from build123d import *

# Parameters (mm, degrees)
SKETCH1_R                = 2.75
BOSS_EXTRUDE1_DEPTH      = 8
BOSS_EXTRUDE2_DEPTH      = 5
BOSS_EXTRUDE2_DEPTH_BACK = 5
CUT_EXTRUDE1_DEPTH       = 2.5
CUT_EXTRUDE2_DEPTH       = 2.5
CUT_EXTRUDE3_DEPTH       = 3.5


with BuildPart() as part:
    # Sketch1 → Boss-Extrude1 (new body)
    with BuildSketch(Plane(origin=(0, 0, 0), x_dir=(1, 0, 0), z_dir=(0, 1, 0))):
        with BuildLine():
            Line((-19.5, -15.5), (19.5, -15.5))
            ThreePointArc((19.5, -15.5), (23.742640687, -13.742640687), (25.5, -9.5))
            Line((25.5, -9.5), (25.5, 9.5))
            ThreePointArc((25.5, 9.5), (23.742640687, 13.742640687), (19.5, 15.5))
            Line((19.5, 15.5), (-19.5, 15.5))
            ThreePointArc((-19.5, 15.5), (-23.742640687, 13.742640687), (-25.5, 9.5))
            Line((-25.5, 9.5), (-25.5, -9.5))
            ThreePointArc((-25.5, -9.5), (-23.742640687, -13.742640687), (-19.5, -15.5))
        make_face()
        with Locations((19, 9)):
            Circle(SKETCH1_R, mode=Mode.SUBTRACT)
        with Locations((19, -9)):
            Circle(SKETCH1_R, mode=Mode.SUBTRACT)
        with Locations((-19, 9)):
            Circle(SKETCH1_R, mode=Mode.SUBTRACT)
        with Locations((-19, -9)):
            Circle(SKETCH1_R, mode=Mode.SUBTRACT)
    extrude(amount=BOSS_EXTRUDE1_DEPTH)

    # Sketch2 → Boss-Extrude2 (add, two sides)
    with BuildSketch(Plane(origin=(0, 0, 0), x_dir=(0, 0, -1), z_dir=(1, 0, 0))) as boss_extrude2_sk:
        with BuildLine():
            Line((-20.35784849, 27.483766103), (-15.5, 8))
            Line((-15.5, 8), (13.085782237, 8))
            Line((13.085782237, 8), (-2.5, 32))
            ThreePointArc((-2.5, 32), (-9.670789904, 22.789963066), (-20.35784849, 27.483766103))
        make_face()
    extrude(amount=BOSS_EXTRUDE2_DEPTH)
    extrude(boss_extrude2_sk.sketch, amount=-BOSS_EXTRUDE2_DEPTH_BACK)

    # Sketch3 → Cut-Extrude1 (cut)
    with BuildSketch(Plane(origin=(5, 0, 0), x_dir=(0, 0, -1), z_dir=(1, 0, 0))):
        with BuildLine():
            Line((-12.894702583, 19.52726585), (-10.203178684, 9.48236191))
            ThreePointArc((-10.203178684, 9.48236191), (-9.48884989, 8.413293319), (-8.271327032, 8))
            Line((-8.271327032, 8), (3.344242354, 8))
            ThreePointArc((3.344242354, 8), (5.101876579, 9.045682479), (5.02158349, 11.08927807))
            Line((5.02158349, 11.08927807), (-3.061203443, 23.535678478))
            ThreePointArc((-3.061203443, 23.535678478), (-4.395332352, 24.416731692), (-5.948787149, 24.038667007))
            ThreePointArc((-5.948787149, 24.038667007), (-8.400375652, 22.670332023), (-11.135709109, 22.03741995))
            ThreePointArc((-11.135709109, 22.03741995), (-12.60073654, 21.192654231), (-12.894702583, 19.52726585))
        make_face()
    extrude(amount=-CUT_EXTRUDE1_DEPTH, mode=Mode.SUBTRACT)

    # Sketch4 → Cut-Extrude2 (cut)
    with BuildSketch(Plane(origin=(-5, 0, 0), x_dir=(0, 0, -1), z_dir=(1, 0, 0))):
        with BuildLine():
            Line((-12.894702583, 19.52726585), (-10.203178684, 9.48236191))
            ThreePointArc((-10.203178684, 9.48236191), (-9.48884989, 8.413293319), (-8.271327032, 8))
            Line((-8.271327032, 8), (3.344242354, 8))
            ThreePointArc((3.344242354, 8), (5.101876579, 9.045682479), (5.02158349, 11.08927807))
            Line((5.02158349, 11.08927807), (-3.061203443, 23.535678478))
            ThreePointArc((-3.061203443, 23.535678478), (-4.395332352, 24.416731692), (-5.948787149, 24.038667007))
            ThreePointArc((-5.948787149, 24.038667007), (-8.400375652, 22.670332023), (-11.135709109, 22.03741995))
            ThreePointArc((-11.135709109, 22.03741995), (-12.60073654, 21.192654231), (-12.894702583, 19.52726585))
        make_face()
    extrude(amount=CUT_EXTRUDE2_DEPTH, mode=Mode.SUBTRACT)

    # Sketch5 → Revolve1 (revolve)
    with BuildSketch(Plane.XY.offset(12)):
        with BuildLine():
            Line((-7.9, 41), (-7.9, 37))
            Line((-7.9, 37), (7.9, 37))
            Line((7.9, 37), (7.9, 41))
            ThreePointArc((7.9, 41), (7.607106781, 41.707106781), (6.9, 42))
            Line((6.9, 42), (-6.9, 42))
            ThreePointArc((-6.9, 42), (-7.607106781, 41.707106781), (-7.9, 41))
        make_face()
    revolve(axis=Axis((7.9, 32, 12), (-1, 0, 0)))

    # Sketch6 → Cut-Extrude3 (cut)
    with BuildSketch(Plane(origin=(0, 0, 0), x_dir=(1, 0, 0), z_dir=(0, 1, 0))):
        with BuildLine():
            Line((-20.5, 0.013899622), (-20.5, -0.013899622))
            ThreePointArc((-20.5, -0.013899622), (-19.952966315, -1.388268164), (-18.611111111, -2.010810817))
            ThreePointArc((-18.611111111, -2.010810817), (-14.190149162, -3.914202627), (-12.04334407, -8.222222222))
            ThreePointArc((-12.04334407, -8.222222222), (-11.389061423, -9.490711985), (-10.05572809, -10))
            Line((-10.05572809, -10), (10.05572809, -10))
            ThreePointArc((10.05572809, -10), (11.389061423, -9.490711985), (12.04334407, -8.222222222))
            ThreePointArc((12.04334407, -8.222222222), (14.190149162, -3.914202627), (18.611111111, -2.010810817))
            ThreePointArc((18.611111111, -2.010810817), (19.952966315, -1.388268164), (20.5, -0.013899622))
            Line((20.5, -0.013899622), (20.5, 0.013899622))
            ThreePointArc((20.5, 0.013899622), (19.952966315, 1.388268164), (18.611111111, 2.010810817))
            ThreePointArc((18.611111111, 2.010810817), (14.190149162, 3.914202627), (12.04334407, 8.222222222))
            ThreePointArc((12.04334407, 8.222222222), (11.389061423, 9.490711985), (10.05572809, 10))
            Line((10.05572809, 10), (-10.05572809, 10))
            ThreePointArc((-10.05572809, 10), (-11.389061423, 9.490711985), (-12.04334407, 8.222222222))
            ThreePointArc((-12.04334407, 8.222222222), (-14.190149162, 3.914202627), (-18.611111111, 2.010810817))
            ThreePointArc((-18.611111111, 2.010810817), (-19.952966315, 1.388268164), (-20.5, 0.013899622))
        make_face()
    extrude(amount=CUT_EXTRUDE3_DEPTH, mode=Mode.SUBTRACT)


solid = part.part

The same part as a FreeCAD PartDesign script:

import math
import FreeCAD as App
import Part
import Sketcher

V = App.Vector
Q = App.Units.Quantity

doc = App.newDocument("Part")
body = doc.addObject("PartDesign::Body", "Body")

# Sketch on XZ plane
sketch1 = doc.addObject("Sketcher::SketchObject", "Sketch")
body.addObject(sketch1)
sketch1.AttachmentSupport = (doc.XZ_Plane, [""])
sketch1.MapMode = "FlatFace"
sketch1.addGeometry([
    Part.LineSegment(V(-19.5, 15.5, 0), V(19.5, 15.5, 0)),  # 0
    Part.ArcOfCircle(Part.Circle(V(19.5, 9.5, 0), V(0, 0, 1), 6), math.radians(0), math.radians(90)),  # 1
    Part.LineSegment(V(25.5, 9.5, 0), V(25.5, -9.5, 0)),  # 2
    Part.ArcOfCircle(Part.Circle(V(19.5, -9.5, 0), V(0, 0, 1), 6), math.radians(-90), math.radians(0)),  # 3
    Part.LineSegment(V(19.5, -15.5, 0), V(-19.5, -15.5, 0)),  # 4
    Part.ArcOfCircle(Part.Circle(V(-19.5, -9.5, 0), V(0, 0, 1), 6), math.radians(180), math.radians(270)),  # 5
    Part.LineSegment(V(-25.5, -9.5, 0), V(-25.5, 9.5, 0)),  # 6
    Part.ArcOfCircle(Part.Circle(V(-19.5, 9.5, 0), V(0, 0, 1), 6), math.radians(90), math.radians(180)),  # 7
    Part.Circle(V(-19, 9, 0), V(0, 0, 1), 2.8),  # 8
    Part.Circle(V(19, 9, 0), V(0, 0, 1), 2.8),  # 9
    Part.Circle(V(-19, -9, 0), V(0, 0, 1), 2.8),  # 10
    Part.Circle(V(19, -9, 0), V(0, 0, 1), 2.8),  # 11
], False)
sketch1.addConstraint([
    Sketcher.Constraint("Tangent", 0, 2, 1, 2),
    Sketcher.Constraint("Tangent", 1, 1, 2, 1),
    Sketcher.Constraint("Tangent", 2, 2, 3, 2),
    Sketcher.Constraint("Tangent", 3, 1, 4, 1),
    Sketcher.Constraint("Tangent", 4, 2, 5, 2),
    Sketcher.Constraint("Tangent", 5, 1, 6, 1),
    Sketcher.Constraint("Tangent", 6, 2, 7, 2),
    Sketcher.Constraint("Tangent", 7, 1, 0, 1),
    Sketcher.Constraint("Horizontal", 0),
    Sketcher.Constraint("Vertical", 2),
    Sketcher.Constraint("Horizontal", 4),
    Sketcher.Constraint("Vertical", 6),
    Sketcher.Constraint("Equal", 1, 3),
    Sketcher.Constraint("Equal", 3, 5),
    Sketcher.Constraint("Equal", 5, 7),
    Sketcher.Constraint("Equal", 8, 9),
    Sketcher.Constraint("Equal", 9, 10),
    Sketcher.Constraint("Equal", 10, 11),
    Sketcher.Constraint("Symmetric", 1, 3, 5, 3, -1, 1),
    Sketcher.Constraint("Symmetric", 9, 3, 10, 3, -1, 1),
    Sketcher.Constraint("Symmetric", 8, 3, 11, 3, -1, 1),
    Sketcher.Constraint("Symmetric", 8, 3, 9, 3, -2),
    Sketcher.Constraint("Radius", 1, Q("6 mm")),
    Sketcher.Constraint("Diameter", 8, Q("5.5 mm")),
    Sketcher.Constraint("DistanceX", 0, 1, 0, 2, Q("39 mm")),
    Sketcher.Constraint("DistanceY", 2, 2, 2, 1, Q("19 mm")),
    Sketcher.Constraint("DistanceX", 8, 3, -1, 1, Q("19 mm")),
    Sketcher.Constraint("DistanceY", -1, 1, 8, 3, Q("9 mm")),
])
pad1 = doc.addObject("PartDesign::Pad", "Pad")
body.addObject(pad1)
pad1.Profile = sketch1
pad1.Length = 8
pad1.Reversed = True

# Sketch on YZ plane
sketch2 = doc.addObject("Sketcher::SketchObject", "Sketch001")
body.addObject(sketch2)
sketch2.AttachmentSupport = (doc.YZ_Plane, [""])
sketch2.MapMode = "FlatFace"
sketch2.addGeometry([
    Part.LineSegment(V(27, 20, 0), V(8, 16, 0)),
    Part.LineSegment(V(8, 16, 0), V(8, -13, 0)),
    Part.LineSegment(V(8, -13, 0), V(32, 2, 0)),
    Part.ArcOfCircle(Part.Circle(V(32, 12, 0), V(0, 0, 1), 10), math.radians(118), math.radians(270)),
], False)
sketch2.addConstraint([
    Sketcher.Constraint("Coincident", 0, 2, 1, 1),
    Sketcher.Constraint("Coincident", 1, 2, 2, 1),
    Sketcher.Constraint("Coincident", 2, 2, 3, 2),
    Sketcher.Constraint("Coincident", 3, 1, 0, 1),
    Sketcher.Constraint("Vertical", 1),
    Sketcher.Constraint("Vertical", 3, 3, 2, 2),
    Sketcher.Constraint("Radius", 3, Q("9.5 mm")),
    Sketcher.Constraint("Angle", 0, Q("-166 deg")),
    Sketcher.Constraint("Angle", 2, Q("33 deg")),
    Sketcher.Constraint("DistanceX", -1, 1, 3, 3, Q("32 mm")),
    Sketcher.Constraint("DistanceY", -1, 1, 3, 3, Q("12 mm")),
    Sketcher.Constraint("DistanceX", -1, 1, 0, 2, Q("8 mm")),
    Sketcher.Constraint("DistanceY", 2, 2, 0, 2, Q("13 mm")),
])
pad2 = doc.addObject("PartDesign::Pad", "Pad001")
body.addObject(pad2)
pad2.Profile = sketch2
pad2.Type = "TwoLengths"
pad2.Length = 5
pad2.Length2 = 5

# Sketch on YZ plane
sketch3 = doc.addObject("Sketcher::SketchObject", "Sketch002")
body.addObject(sketch3)
sketch3.AttachmentSupport = (doc.YZ_Plane, [""])
sketch3.MapMode = "FlatFace"
sketch3.AttachmentOffset = App.Placement(V(0, 0, 5), App.Rotation())
sketch3.addGeometry([
    Part.LineSegment(V(19.5, 12.9, 0), V(9.5, 10.2, 0)),  # 0
    Part.ArcOfCircle(Part.Circle(V(10, 8.3, 0), V(0, 0, 1), 2), math.radians(105), math.radians(180)),  # 1
    Part.LineSegment(V(8, 8.3, 0), V(8, -3.3, 0)),  # 2
    Part.ArcOfCircle(Part.Circle(V(10, -3.3, 0), V(0, 0, 1), 2), math.radians(180), math.radians(303)),  # 3
    Part.LineSegment(V(11.1, -5, 0), V(23.5, 3.1, 0)),  # 4
    Part.ArcOfCircle(Part.Circle(V(22.4, 4.7, 0), V(0, 0, 1), 2), math.radians(-57), math.radians(37)),  # 5
    Part.ArcOfCircle(Part.Circle(V(32, 12, 0), V(0, 0, 1), 10), math.radians(-175), math.radians(-143)),  # 6
    Part.ArcOfCircle(Part.Circle(V(20, 11, 0), V(0, 0, 1), 2), math.radians(5), math.radians(105)),  # 7
], False)
sketch3.addConstraint([
    Sketcher.Constraint("Tangent", 0, 2, 1, 1),
    Sketcher.Constraint("Tangent", 1, 2, 2, 1),
    Sketcher.Constraint("Tangent", 2, 2, 3, 1),
    Sketcher.Constraint("Tangent", 3, 2, 4, 1),
    Sketcher.Constraint("Tangent", 4, 2, 5, 1),
    Sketcher.Constraint("Tangent", 5, 2, 6, 2),
    Sketcher.Constraint("Tangent", 6, 1, 7, 1),
    Sketcher.Constraint("Tangent", 7, 2, 0, 1),
    Sketcher.Constraint("Vertical", 2),
    Sketcher.Constraint("Equal", 1, 3),
    Sketcher.Constraint("Equal", 3, 5),
    Sketcher.Constraint("Equal", 5, 7),
    Sketcher.Constraint("Radius", 1, Q("2 mm")),
    Sketcher.Constraint("Radius", 6, Q("10 mm")),
    Sketcher.Constraint("Angle", 0, Q("-165 deg")),
    Sketcher.Constraint("Angle", 4, Q("33 deg")),
    Sketcher.Constraint("DistanceX", -1, 1, 1, 3, Q("10 mm")),
    Sketcher.Constraint("DistanceX", -1, 1, 6, 3, Q("32 mm")),
    Sketcher.Constraint("DistanceY", -1, 1, 6, 3, Q("12 mm")),
    Sketcher.Constraint("DistanceY", 2, 2, 2, 1, Q("11.615569 mm")),
    Sketcher.Constraint("DistanceX", -1, 1, 5, 3, Q("22.4464 mm")),
])
pocket1 = doc.addObject("PartDesign::Pocket", "Pocket")
body.addObject(pocket1)
pocket1.Profile = sketch3
pocket1.Length = 2.5

# Sketch on YZ plane
sketch4 = doc.addObject("Sketcher::SketchObject", "Sketch003")
body.addObject(sketch4)
sketch4.AttachmentSupport = (doc.YZ_Plane, [""])
sketch4.MapMode = "FlatFace"
sketch4.AttachmentOffset = App.Placement(V(0, 0, -5), App.Rotation())
sketch4.addGeometry([
    Part.LineSegment(V(19.5, 12.9, 0), V(9.5, 10.2, 0)),  # 0
    Part.ArcOfCircle(Part.Circle(V(10, 8.3, 0), V(0, 0, 1), 2), math.radians(105), math.radians(180)),  # 1
    Part.LineSegment(V(8, 8.3, 0), V(8, -3.3, 0)),  # 2
    Part.ArcOfCircle(Part.Circle(V(10, -3.3, 0), V(0, 0, 1), 2), math.radians(180), math.radians(303)),  # 3
    Part.LineSegment(V(11.1, -5, 0), V(23.5, 3.1, 0)),  # 4
    Part.ArcOfCircle(Part.Circle(V(22.4, 4.7, 0), V(0, 0, 1), 2), math.radians(-57), math.radians(37)),  # 5
    Part.ArcOfCircle(Part.Circle(V(32, 12, 0), V(0, 0, 1), 10), math.radians(-175), math.radians(-143)),  # 6
    Part.ArcOfCircle(Part.Circle(V(20, 11, 0), V(0, 0, 1), 2), math.radians(5), math.radians(105)),  # 7
], False)
sketch4.addConstraint([
    Sketcher.Constraint("Tangent", 0, 2, 1, 1),
    Sketcher.Constraint("Tangent", 1, 2, 2, 1),
    Sketcher.Constraint("Tangent", 2, 2, 3, 1),
    Sketcher.Constraint("Tangent", 3, 2, 4, 1),
    Sketcher.Constraint("Tangent", 4, 2, 5, 1),
    Sketcher.Constraint("Tangent", 5, 2, 6, 2),
    Sketcher.Constraint("Tangent", 6, 1, 7, 1),
    Sketcher.Constraint("Tangent", 7, 2, 0, 1),
    Sketcher.Constraint("Vertical", 2),
    Sketcher.Constraint("Equal", 1, 3),
    Sketcher.Constraint("Equal", 3, 5),
    Sketcher.Constraint("Equal", 5, 7),
    Sketcher.Constraint("Radius", 1, Q("2 mm")),
    Sketcher.Constraint("Radius", 6, Q("10 mm")),
    Sketcher.Constraint("Angle", 0, Q("-165 deg")),
    Sketcher.Constraint("Angle", 4, Q("33 deg")),
    Sketcher.Constraint("DistanceX", -1, 1, 1, 3, Q("10 mm")),
    Sketcher.Constraint("DistanceX", -1, 1, 6, 3, Q("32 mm")),
    Sketcher.Constraint("DistanceY", -1, 1, 6, 3, Q("12 mm")),
    Sketcher.Constraint("DistanceY", 2, 2, 2, 1, Q("11.615569 mm")),
    Sketcher.Constraint("DistanceX", -1, 1, 5, 3, Q("22.4464 mm")),
])
pocket2 = doc.addObject("PartDesign::Pocket", "Pocket001")
body.addObject(pocket2)
pocket2.Profile = sketch4
pocket2.Length = 2.5
pocket2.Reversed = True

# Sketch on XY plane
sketch5 = doc.addObject("Sketcher::SketchObject", "Sketch004")
body.addObject(sketch5)
sketch5.AttachmentSupport = (doc.XY_Plane, [""])
sketch5.MapMode = "FlatFace"
sketch5.AttachmentOffset = App.Placement(V(0, 0, 12), App.Rotation())
sketch5.addGeometry([
    Part.LineSegment(V(-7.9, 41, 0), V(-7.9, 37, 0)),  # 0
    Part.LineSegment(V(-7.9, 37, 0), V(7.9, 37, 0)),  # 1
    Part.LineSegment(V(7.9, 37, 0), V(7.9, 41, 0)),  # 2
    Part.ArcOfCircle(Part.Circle(V(6.9, 41, 0), V(0, 0, 1), 1), math.radians(0), math.radians(90)),  # 3
    Part.LineSegment(V(6.9, 42, 0), V(-6.9, 42, 0)),  # 4
    Part.ArcOfCircle(Part.Circle(V(-6.9, 41, 0), V(0, 0, 1), 1), math.radians(90), math.radians(180)),  # 5
], False)
sketch5.addGeometry(Part.LineSegment(V(7.9, 32, 0), V(-7.9, 32, 0)), True)  # axis
sketch5.addConstraint([
    Sketcher.Constraint("Coincident", 0, 2, 1, 1),
    Sketcher.Constraint("Coincident", 1, 2, 2, 1),
    Sketcher.Constraint("Tangent", 2, 2, 3, 1),
    Sketcher.Constraint("Tangent", 3, 2, 4, 1),
    Sketcher.Constraint("Tangent", 4, 2, 5, 1),
    Sketcher.Constraint("Tangent", 5, 2, 0, 1),
    Sketcher.Constraint("Vertical", 0),
    Sketcher.Constraint("Horizontal", 1),
    Sketcher.Constraint("Vertical", 2),
    Sketcher.Constraint("Horizontal", 4),
    Sketcher.Constraint("Horizontal", 6),
    Sketcher.Constraint("Equal", 3, 5),
    Sketcher.Constraint("Vertical", 2, 2, 6, 1),
    Sketcher.Constraint("Vertical", 5, 2, 6, 2),
    Sketcher.Constraint("Radius", 3, Q("1 mm")),
    Sketcher.Constraint("DistanceY", 0, 2, 0, 1, Q("4 mm")),
    Sketcher.Constraint("DistanceX", 1, 1, 1, 2, Q("15.8 mm")),
    Sketcher.Constraint("DistanceY", -1, 1, 3, 3, Q("41 mm")),
    Sketcher.Constraint("DistanceY", -1, 1, 6, 1, Q("32 mm")),
    Sketcher.Constraint("DistanceX", -1, 1, 3, 3, Q("6.9 mm")),
])
revolution = doc.addObject("PartDesign::Revolution", "Revolution")
body.addObject(revolution)
revolution.Profile = sketch5
revolution.ReferenceAxis = (sketch5, ["Axis0"])
revolution.Angle = 360

# Sketch on XZ plane
sketch6 = doc.addObject("Sketcher::SketchObject", "Sketch005")
body.addObject(sketch6)
sketch6.AttachmentSupport = (doc.XZ_Plane, [""])
sketch6.MapMode = "FlatFace"
sketch6.addGeometry([
    Part.LineSegment(V(-20.5, -0.014, 0), V(-20.5, 0.014, 0)),  # 0
    Part.ArcOfCircle(Part.Circle(V(-18.5, 0.014, 0), V(0, 0, 1), 2), math.radians(93), math.radians(180)),  # 1
    Part.ArcOfCircle(Part.Circle(V(-19, 9, 0), V(0, 0, 1), 7), math.radians(-87), math.radians(-6)),  # 2
    Part.ArcOfCircle(Part.Circle(V(-10.056, 8, 0), V(0, 0, 1), 2), math.radians(90), math.radians(174)),  # 3
    Part.LineSegment(V(-10.056, 10, 0), V(10.056, 10, 0)),  # 4
    Part.ArcOfCircle(Part.Circle(V(10.056, 8, 0), V(0, 0, 1), 2), math.radians(6), math.radians(90)),  # 5
    Part.ArcOfCircle(Part.Circle(V(19, 9, 0), V(0, 0, 1), 7), math.radians(-174), math.radians(-93)),  # 6
    Part.ArcOfCircle(Part.Circle(V(18.5, 0.014, 0), V(0, 0, 1), 2), math.radians(0), math.radians(87)),  # 7
    Part.LineSegment(V(20.5, 0.014, 0), V(20.5, -0.014, 0)),  # 8
    Part.ArcOfCircle(Part.Circle(V(18.5, -0.014, 0), V(0, 0, 1), 2), math.radians(-87), math.radians(0)),  # 9
    Part.ArcOfCircle(Part.Circle(V(19, -9, 0), V(0, 0, 1), 7), math.radians(93), math.radians(174)),  # 10
    Part.ArcOfCircle(Part.Circle(V(10.056, -8, 0), V(0, 0, 1), 2), math.radians(-90), math.radians(-6)),  # 11
    Part.LineSegment(V(10.056, -10, 0), V(-10.056, -10, 0)),  # 12
    Part.ArcOfCircle(Part.Circle(V(-10.056, -8, 0), V(0, 0, 1), 2), math.radians(-174), math.radians(-90)),  # 13
    Part.ArcOfCircle(Part.Circle(V(-19, -9, 0), V(0, 0, 1), 7), math.radians(6), math.radians(87)),  # 14
    Part.ArcOfCircle(Part.Circle(V(-18.5, -0.014, 0), V(0, 0, 1), 2), math.radians(180), math.radians(267)),  # 15
], False)
sketch6.addConstraint([
    Sketcher.Constraint("Tangent", 0, 2, 1, 2),
    Sketcher.Constraint("Tangent", 1, 1, 2, 1),
    Sketcher.Constraint("Tangent", 2, 2, 3, 2),
    Sketcher.Constraint("Tangent", 3, 1, 4, 1),
    Sketcher.Constraint("Tangent", 4, 2, 5, 2),
    Sketcher.Constraint("Tangent", 5, 1, 6, 1),
    Sketcher.Constraint("Tangent", 6, 2, 7, 2),
    Sketcher.Constraint("Tangent", 7, 1, 8, 1),
    Sketcher.Constraint("Tangent", 8, 2, 9, 2),
    Sketcher.Constraint("Tangent", 9, 1, 10, 1),
    Sketcher.Constraint("Tangent", 10, 2, 11, 2),
    Sketcher.Constraint("Tangent", 11, 1, 12, 1),
    Sketcher.Constraint("Tangent", 12, 2, 13, 2),
    Sketcher.Constraint("Tangent", 13, 1, 14, 1),
    Sketcher.Constraint("Tangent", 14, 2, 15, 2),
    Sketcher.Constraint("Tangent", 15, 1, 0, 1),
    Sketcher.Constraint("Vertical", 0),
    Sketcher.Constraint("Horizontal", 4),
    Sketcher.Constraint("Vertical", 8),
    Sketcher.Constraint("Horizontal", 12),
    Sketcher.Constraint("Equal", 1, 3),
    Sketcher.Constraint("Equal", 3, 5),
    Sketcher.Constraint("Equal", 2, 6),
    Sketcher.Constraint("Equal", 5, 7),
    Sketcher.Constraint("Equal", 7, 9),
    Sketcher.Constraint("Equal", 6, 10),
    Sketcher.Constraint("Equal", 9, 11),
    Sketcher.Constraint("Equal", 11, 13),
    Sketcher.Constraint("Equal", 10, 14),
    Sketcher.Constraint("Equal", 13, 15),
    Sketcher.Constraint("Symmetric", 1, 3, 9, 3, -1, 1),
    Sketcher.Constraint("Symmetric", 3, 3, 11, 3, -1, 1),
    Sketcher.Constraint("Symmetric", 6, 3, 14, 3, -1, 1),
    Sketcher.Constraint("Symmetric", 2, 3, 6, 3, -2),
    Sketcher.Constraint("Radius", 1, Q("2 mm")),
    Sketcher.Constraint("Radius", 2, Q("7 mm")),
    Sketcher.Constraint("DistanceX", 2, 3, -1, 1, Q("19 mm")),
    Sketcher.Constraint("DistanceY", -1, 1, 2, 3, Q("9 mm")),
    Sketcher.Constraint("DistanceY", -1, 1, 3, 3, Q("8 mm")),
    Sketcher.Constraint("DistanceX", 1, 3, 7, 3, Q("37 mm")),
])
pocket3 = doc.addObject("PartDesign::Pocket", "Pocket002")
body.addObject(pocket3)
pocket3.Profile = sketch6
pocket3.Length = 3.5

doc.recompute()
